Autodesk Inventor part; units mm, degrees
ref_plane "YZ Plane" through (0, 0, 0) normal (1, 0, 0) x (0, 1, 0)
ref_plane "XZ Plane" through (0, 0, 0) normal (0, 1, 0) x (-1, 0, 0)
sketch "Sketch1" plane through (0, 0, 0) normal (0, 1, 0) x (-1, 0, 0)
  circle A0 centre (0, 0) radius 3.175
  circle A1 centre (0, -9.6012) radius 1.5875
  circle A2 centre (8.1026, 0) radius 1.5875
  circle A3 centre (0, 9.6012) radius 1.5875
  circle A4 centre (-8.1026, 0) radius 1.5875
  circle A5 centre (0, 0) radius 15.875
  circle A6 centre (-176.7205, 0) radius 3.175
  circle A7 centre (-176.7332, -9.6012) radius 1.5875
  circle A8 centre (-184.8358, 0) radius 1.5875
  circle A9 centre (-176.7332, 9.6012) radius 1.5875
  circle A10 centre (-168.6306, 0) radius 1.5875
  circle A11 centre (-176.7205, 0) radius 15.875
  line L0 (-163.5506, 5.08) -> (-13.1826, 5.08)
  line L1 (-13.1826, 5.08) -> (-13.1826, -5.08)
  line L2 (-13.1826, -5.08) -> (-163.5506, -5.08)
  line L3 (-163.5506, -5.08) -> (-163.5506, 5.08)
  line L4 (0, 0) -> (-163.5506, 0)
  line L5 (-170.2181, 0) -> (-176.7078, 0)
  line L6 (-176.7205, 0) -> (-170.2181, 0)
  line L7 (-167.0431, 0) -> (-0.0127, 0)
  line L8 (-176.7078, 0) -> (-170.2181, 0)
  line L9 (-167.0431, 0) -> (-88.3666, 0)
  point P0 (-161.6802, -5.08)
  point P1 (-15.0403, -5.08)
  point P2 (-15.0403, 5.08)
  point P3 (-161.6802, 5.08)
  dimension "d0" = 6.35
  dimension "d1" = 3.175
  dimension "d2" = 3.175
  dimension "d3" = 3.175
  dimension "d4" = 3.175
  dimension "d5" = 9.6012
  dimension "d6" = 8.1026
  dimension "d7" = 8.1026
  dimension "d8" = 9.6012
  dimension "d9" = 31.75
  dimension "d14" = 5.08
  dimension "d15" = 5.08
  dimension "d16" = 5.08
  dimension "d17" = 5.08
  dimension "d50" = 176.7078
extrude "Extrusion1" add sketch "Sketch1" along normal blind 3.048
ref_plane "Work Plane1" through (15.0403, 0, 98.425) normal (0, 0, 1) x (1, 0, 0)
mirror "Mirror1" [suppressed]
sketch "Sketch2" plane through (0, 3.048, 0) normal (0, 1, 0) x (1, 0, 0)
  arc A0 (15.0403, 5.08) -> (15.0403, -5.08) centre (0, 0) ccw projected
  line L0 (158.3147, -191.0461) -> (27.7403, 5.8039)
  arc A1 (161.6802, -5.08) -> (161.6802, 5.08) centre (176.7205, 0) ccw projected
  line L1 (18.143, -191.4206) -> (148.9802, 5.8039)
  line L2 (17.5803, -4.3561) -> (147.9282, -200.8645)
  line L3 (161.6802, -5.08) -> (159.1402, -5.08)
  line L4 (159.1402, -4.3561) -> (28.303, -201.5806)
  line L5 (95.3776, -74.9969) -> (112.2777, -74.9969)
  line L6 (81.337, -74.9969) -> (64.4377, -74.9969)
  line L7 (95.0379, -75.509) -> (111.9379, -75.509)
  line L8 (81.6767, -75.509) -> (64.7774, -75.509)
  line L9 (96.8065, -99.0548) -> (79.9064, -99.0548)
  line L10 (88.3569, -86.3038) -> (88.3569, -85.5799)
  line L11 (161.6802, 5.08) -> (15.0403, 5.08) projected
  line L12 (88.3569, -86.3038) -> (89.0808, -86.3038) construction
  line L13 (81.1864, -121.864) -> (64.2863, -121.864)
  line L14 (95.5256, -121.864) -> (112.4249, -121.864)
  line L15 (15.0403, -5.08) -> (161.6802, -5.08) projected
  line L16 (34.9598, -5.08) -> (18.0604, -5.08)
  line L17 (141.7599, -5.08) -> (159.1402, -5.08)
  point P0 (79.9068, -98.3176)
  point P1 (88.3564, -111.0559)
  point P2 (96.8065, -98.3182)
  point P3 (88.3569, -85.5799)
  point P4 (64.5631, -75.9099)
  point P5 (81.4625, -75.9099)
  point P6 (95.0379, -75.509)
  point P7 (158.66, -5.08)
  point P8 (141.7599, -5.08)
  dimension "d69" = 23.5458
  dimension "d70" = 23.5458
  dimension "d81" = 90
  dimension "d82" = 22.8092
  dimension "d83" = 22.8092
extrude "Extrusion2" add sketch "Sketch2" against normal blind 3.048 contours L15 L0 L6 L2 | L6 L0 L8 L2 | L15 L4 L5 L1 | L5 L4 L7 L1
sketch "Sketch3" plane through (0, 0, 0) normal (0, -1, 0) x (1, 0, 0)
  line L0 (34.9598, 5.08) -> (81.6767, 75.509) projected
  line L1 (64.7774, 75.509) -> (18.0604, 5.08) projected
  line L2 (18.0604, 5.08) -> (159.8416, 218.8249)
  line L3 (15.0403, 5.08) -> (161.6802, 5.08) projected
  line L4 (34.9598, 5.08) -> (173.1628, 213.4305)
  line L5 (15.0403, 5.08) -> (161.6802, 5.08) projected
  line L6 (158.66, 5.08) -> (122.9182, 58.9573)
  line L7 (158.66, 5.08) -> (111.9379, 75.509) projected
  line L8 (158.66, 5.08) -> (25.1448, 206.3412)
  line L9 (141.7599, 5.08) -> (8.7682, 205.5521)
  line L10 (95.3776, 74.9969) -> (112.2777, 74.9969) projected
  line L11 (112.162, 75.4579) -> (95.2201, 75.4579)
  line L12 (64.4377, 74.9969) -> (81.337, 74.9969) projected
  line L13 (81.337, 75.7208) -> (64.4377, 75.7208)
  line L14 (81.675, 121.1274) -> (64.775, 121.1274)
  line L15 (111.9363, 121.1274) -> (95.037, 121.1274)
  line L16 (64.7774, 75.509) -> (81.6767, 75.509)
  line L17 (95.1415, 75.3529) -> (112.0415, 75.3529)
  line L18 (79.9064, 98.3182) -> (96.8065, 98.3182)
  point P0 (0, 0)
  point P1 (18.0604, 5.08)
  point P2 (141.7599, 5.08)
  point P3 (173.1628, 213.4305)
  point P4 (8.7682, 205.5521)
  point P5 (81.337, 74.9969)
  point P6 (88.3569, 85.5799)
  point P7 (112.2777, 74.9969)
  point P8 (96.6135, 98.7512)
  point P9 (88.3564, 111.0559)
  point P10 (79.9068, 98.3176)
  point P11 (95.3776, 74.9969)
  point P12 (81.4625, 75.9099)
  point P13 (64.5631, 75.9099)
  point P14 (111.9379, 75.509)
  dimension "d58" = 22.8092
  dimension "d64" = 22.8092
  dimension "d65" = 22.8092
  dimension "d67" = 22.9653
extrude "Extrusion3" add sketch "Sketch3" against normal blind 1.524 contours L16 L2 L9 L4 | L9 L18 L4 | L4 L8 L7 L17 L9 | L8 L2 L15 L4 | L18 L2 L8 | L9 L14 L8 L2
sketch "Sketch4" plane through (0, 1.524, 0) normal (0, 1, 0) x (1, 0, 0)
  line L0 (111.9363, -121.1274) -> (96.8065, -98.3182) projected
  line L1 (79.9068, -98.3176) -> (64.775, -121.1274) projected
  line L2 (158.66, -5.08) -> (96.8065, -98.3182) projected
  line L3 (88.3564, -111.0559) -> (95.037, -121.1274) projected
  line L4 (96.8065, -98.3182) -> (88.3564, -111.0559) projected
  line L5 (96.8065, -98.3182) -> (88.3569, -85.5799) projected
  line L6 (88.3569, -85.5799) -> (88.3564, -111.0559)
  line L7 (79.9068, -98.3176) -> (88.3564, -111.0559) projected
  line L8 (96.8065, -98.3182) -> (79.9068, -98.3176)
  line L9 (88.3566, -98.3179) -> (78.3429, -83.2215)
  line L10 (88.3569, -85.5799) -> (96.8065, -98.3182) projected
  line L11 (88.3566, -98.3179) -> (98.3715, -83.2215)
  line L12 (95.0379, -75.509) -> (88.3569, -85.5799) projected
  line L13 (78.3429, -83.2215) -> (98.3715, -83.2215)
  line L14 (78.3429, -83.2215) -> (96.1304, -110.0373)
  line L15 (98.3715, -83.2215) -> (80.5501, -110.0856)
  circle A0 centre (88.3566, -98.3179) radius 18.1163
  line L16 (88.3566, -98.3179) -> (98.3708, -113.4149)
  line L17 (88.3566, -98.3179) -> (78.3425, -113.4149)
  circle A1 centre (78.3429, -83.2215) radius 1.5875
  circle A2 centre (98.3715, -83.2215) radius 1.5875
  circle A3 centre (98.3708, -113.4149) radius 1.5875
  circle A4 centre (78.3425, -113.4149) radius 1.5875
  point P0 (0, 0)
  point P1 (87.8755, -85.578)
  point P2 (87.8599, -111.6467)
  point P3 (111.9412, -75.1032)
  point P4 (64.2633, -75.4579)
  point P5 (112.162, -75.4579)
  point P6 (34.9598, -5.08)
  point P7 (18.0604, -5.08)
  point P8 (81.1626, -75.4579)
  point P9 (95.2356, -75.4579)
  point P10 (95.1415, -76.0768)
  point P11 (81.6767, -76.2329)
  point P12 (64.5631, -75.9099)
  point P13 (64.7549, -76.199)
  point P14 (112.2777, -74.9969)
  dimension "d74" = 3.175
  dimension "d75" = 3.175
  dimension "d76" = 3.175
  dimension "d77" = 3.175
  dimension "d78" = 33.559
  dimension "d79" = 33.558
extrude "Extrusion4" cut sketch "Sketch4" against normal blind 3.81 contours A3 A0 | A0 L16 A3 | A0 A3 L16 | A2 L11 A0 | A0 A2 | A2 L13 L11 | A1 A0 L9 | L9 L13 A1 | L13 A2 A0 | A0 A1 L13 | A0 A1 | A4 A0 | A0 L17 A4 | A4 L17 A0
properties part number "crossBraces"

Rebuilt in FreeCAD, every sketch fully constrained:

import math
import FreeCAD as App
import Part
import Sketcher
Q = App.Units.Quantity

doc = App.newDocument("Part")
body = doc.addObject("PartDesign::Body", "Body")

sketch1 = body.newObject("Sketcher::SketchObject", "Sketch")
sketch1.AttachmentSupport = (doc.getObject("XZ_Plane"), [""])
sketch1.MapMode = "FlatFace"
sketch1.addGeometry(Part.LineSegment(App.Vector(15.040253, 5.08, 0), App.Vector(161.680247, 5.08, 0)), False)
sketch1.addGeometry(Part.ArcOfCircle(Part.Circle(App.Vector(176.7205, 0, 0), App.Vector(0, 0, 1), 15.875), math.radians(-161.337075), math.radians(161.337075)), False)
sketch1.addGeometry(Part.LineSegment(App.Vector(161.680247, -5.08, 0), App.Vector(15.040253, -5.08, 0)), False)
sketch1.addGeometry(Part.ArcOfCircle(Part.Circle(App.Vector(0, 0, 0), App.Vector(0, 0, 1), 15.875), math.radians(18.662925), math.radians(341.337075)), False)
sketch1.addGeometry(Part.Circle(App.Vector(0, -9.6012, 0), App.Vector(0, 0, 1), 1.5875), False)
sketch1.addGeometry(Part.ArcOfCircle(Part.Circle(App.Vector(8.1026, 0, 0), App.Vector(0, 0, 1), 1.5875), math.radians(0), math.radians(180)), False)
sketch1.addGeometry(Part.ArcOfCircle(Part.Circle(App.Vector(8.1026, 0, 0), App.Vector(0, 0, 1), 1.5875), math.radians(180), math.radians(360)), False)
sketch1.addGeometry(Part.Circle(App.Vector(0, 0, 0), App.Vector(0, 0, 1), 3.175), False)
sketch1.addGeometry(Part.Circle(App.Vector(-8.1026, 0, 0), App.Vector(0, 0, 1), 1.5875), False)
sketch1.addGeometry(Part.Circle(App.Vector(0, 9.6012, 0), App.Vector(0, 0, 1), 1.5875), False)
sketch1.addGeometry(Part.ArcOfCircle(Part.Circle(App.Vector(168.6306, 0, 0), App.Vector(0, 0, 1), 1.5875), math.radians(180), math.radians(360)), False)
sketch1.addGeometry(Part.ArcOfCircle(Part.Circle(App.Vector(168.6306, 0, 0), App.Vector(0, 0, 1), 1.5875), math.radians(0), math.radians(180)), False)
sketch1.addGeometry(Part.Circle(App.Vector(176.7332, 9.6012, 0), App.Vector(0, 0, 1), 1.5875), False)
sketch1.addGeometry(Part.Circle(App.Vector(176.7332, -9.6012, 0), App.Vector(0, 0, 1), 1.5875), False)
sketch1.addGeometry(Part.Circle(App.Vector(184.8358, 0, 0), App.Vector(0, 0, 1), 1.5875), False)
sketch1.addGeometry(Part.Circle(App.Vector(176.7205, 0, 0), App.Vector(0, 0, 1), 3.175), False)
sketch1.addConstraint(Sketcher.Constraint("Coincident", 0, 2, 1, 2))
sketch1.addConstraint(Sketcher.Constraint("Coincident", 1, 1, 2, 1))
sketch1.addConstraint(Sketcher.Constraint("Coincident", 2, 2, 3, 2))
sketch1.addConstraint(Sketcher.Constraint("Coincident", 3, 1, 0, 1))
sketch1.addConstraint(Sketcher.Constraint("Tangent", 5, 1, 6, 2))
sketch1.addConstraint(Sketcher.Constraint("Coincident", 6, 1, 5, 2))
sketch1.addConstraint(Sketcher.Constraint("Tangent", 10, 1, 11, 2))
sketch1.addConstraint(Sketcher.Constraint("Coincident", 11, 1, 10, 2))
sketch1.addConstraint(Sketcher.Constraint("Horizontal", 0))
sketch1.addConstraint(Sketcher.Constraint("Horizontal", 2))
sketch1.addConstraint(Sketcher.Constraint("Coincident", 3, 3, -1, 1))
sketch1.addConstraint(Sketcher.Constraint("Coincident", 7, 3, -1, 1))
sketch1.addConstraint(Sketcher.Constraint("Coincident", 15, 3, 1, 3))
sketch1.addConstraint(Sketcher.Constraint("Equal", 1, 3))
sketch1.addConstraint(Sketcher.Constraint("Equal", 4, 5))
sketch1.addConstraint(Sketcher.Constraint("Equal", 6, 8))
sketch1.addConstraint(Sketcher.Constraint("Equal", 8, 9))
sketch1.addConstraint(Sketcher.Constraint("Equal", 9, 10))
sketch1.addConstraint(Sketcher.Constraint("Equal", 11, 12))
sketch1.addConstraint(Sketcher.Constraint("Equal", 12, 13))
sketch1.addConstraint(Sketcher.Constraint("Equal", 13, 14))
sketch1.addConstraint(Sketcher.Constraint("Equal", 7, 15))
sketch1.addConstraint(Sketcher.Constraint("Symmetric", 5, 3, 8, 3, -1, 1))
sketch1.addConstraint(Sketcher.Constraint("Symmetric", 4, 3, 9, 3, -1, 1))
sketch1.addConstraint(Sketcher.Constraint("Symmetric", 12, 3, 13, 3, -1))
sketch1.addConstraint(Sketcher.Constraint("Symmetric", 0, 2, 1, 1, -1))
sketch1.addConstraint(Sketcher.Constraint("PointOnObject", 4, 3, -2))
sketch1.addConstraint(Sketcher.Constraint("PointOnObject", 5, 3, -1))
sketch1.addConstraint(Sketcher.Constraint("PointOnObject", 10, 3, -1))
sketch1.addConstraint(Sketcher.Constraint("PointOnObject", 14, 3, -1))
sketch1.addConstraint(Sketcher.Constraint("PointOnObject", 5, 1, -1))
sketch1.addConstraint(Sketcher.Constraint("PointOnObject", 6, 1, -1))
sketch1.addConstraint(Sketcher.Constraint("PointOnObject", 10, 1, -1))
sketch1.addConstraint(Sketcher.Constraint("PointOnObject", 11, 1, -1))
sketch1.addConstraint(Sketcher.Constraint("Horizontal", 9, 3, 12, 3))
sketch1.addConstraint(Sketcher.Constraint("Diameter", 7, Q("0.25 in")))
sketch1.addConstraint(Sketcher.Constraint("Diameter", 4, Q("0.125 in")))
sketch1.addConstraint(Sketcher.Constraint("Radius", 1, Q("0.625 in")))
sketch1.addConstraint(Sketcher.Constraint("DistanceY", -1, 1, 0, 2, Q("0.2 in")))
sketch1.addConstraint(Sketcher.Constraint("DistanceY", 4, 3, -1, 1, Q("0.378 in")))
sketch1.addConstraint(Sketcher.Constraint("DistanceX", -1, 1, 5, 3, Q("0.319 in")))
sketch1.addConstraint(Sketcher.Constraint("DistanceX", 10, 3, 12, 3, Q("0.319 in")))
sketch1.addConstraint(Sketcher.Constraint("DistanceX", 12, 3, 14, 3, Q("0.319 in")))
sketch1.addConstraint(Sketcher.Constraint("DistanceX", 5, 3, 10, 3, Q("6.32 in")))
sketch1.addConstraint(Sketcher.Constraint("DistanceX", 10, 1, 1, 3, Q("0.381 in")))
pad1 = body.newObject("PartDesign::Pad", "Pad")
pad1.Profile = sketch1
pad1.Length = Q("0.12 in")
pad1.Reversed = True

sketch2 = body.newObject("Sketcher::SketchObject", "Sketch001")
sketch2.AttachmentSupport = (doc.getObject("XZ_Plane"), [""])
sketch2.MapMode = "FlatFace"
sketch2.AttachmentOffset = App.Placement(App.Vector(0, 0, -0.12 * 25.4), App.Rotation())
sketch2.addGeometry(Part.LineSegment(App.Vector(34.9598, 5.08, 0), App.Vector(18.0604, 5.08, 0)), False)
sketch2.addGeometry(Part.LineSegment(App.Vector(18.0604, 5.08, 0), App.Vector(64.7774, 75.509, 0)), False)
sketch2.addGeometry(Part.LineSegment(App.Vector(64.7774, 75.509, 0), App.Vector(81.6767, 75.509, 0)), False)
sketch2.addGeometry(Part.LineSegment(App.Vector(81.6767, 75.509, 0), App.Vector(34.9598, 5.08, 0)), False)
sketch2.addGeometry(Part.LineSegment(App.Vector(158.65997, 5.08, 0), App.Vector(141.7599, 5.08, 0)), False)
sketch2.addGeometry(Part.LineSegment(App.Vector(141.7599, 5.08, 0), App.Vector(95.0379, 75.509, 0)), False)
sketch2.addGeometry(Part.LineSegment(App.Vector(95.0379, 75.509, 0), App.Vector(111.9379, 75.509, 0)), False)
sketch2.addGeometry(Part.LineSegment(App.Vector(111.9379, 75.509, 0), App.Vector(158.65997, 5.08, 0)), False)
sketch2.addConstraint(Sketcher.Constraint("Coincident", 0, 2, 1, 1))
sketch2.addConstraint(Sketcher.Constraint("Coincident", 1, 2, 2, 1))
sketch2.addConstraint(Sketcher.Constraint("Coincident", 2, 2, 3, 1))
sketch2.addConstraint(Sketcher.Constraint("Coincident", 3, 2, 0, 1))
sketch2.addConstraint(Sketcher.Constraint("Coincident", 4, 2, 5, 1))
sketch2.addConstraint(Sketcher.Constraint("Coincident", 5, 2, 6, 1))
sketch2.addConstraint(Sketcher.Constraint("Coincident", 6, 2, 7, 1))
sketch2.addConstraint(Sketcher.Constraint("Coincident", 7, 2, 4, 1))
sketch2.addConstraint(Sketcher.Constraint("Horizontal", 0))
sketch2.addConstraint(Sketcher.Constraint("Horizontal", 2))
sketch2.addConstraint(Sketcher.Constraint("Horizontal", 4))
sketch2.addConstraint(Sketcher.Constraint("Horizontal", 6))
sketch2.addConstraint(Sketcher.Constraint("Parallel", 1, 3))
sketch2.addConstraint(Sketcher.Constraint("Parallel", 5, 7))
sketch2.addConstraint(Sketcher.Constraint("Horizontal", 3, 2, 4, 2))
sketch2.addConstraint(Sketcher.Constraint("Horizontal", 2, 2, 5, 2))
sketch2.addConstraint(Sketcher.Constraint("DistanceY", -1, 1, 0, 2, Q("0.2 in")))
sketch2.addConstraint(Sketcher.Constraint("Angle", 5, Q("123.56 deg")))
sketch2.addConstraint(Sketcher.Constraint("DistanceX", -1, 1, 6, 2, Q("4.407 in")))
sketch2.addConstraint(Sketcher.Constraint("DistanceX", 0, 2, 0, 1, 16.8994))
sketch2.addConstraint(Sketcher.Constraint("DistanceX", 4, 2, 4, 1, 16.9))
sketch2.addConstraint(Sketcher.Constraint("DistanceX", -1, 1, 1, 2, Q("2.5503 in")))
sketch2.addConstraint(Sketcher.Constraint("DistanceY", -1, 1, 1, 2, Q("2.9728 in")))
sketch2.addConstraint(Sketcher.Constraint("DistanceX", 0, 2, 5, 2, Q("3.0306 in")))
pad2 = body.newObject("PartDesign::Pad", "Pad001")
pad2.Profile = sketch2
pad2.Length = Q("0.12 in")

sketch3 = body.newObject("Sketcher::SketchObject", "Sketch002")
sketch3.AttachmentSupport = (doc.getObject("XZ_Plane"), [""])
sketch3.MapMode = "FlatFace"
sketch3.addGeometry(Part.LineSegment(App.Vector(64.7774, 75.509, 0), App.Vector(81.6767, 75.509, 0)), False)
sketch3.addGeometry(Part.LineSegment(App.Vector(81.676732, 75.508979, 0), App.Vector(88.356919, 85.579819, 0)), False)
sketch3.addGeometry(Part.LineSegment(App.Vector(88.356919, 85.579819, 0), App.Vector(95.141417, 75.352845, 0)), False)
sketch3.addGeometry(Part.LineSegment(App.Vector(95.1415, 75.3529, 0), App.Vector(112.0415, 75.3529, 0)), False)
sketch3.addGeometry(Part.LineSegment(App.Vector(112.0415, 75.3529, 0), App.Vector(111.9379, 75.509, 0)), False)
sketch3.addGeometry(Part.LineSegment(App.Vector(111.937913, 75.509009, 0), App.Vector(96.806475, 98.318183, 0)), False)
sketch3.addGeometry(Part.LineSegment(App.Vector(96.806527, 98.318182, 0), App.Vector(111.936322, 121.127385, 0)), False)
sketch3.addGeometry(Part.LineSegment(App.Vector(111.9363, 121.1274, 0), App.Vector(95.037, 121.1274, 0)), False)
sketch3.addGeometry(Part.LineSegment(App.Vector(95.036948, 121.127435, 0), App.Vector(88.356334, 111.05595, 0)), False)
sketch3.addGeometry(Part.LineSegment(App.Vector(88.356334, 111.05595, 0), App.Vector(81.675006, 121.127404, 0)), False)
sketch3.addGeometry(Part.LineSegment(App.Vector(81.675, 121.1274, 0), App.Vector(64.775, 121.1274, 0)), False)
sketch3.addGeometry(Part.LineSegment(App.Vector(64.774943, 121.127362, 0), App.Vector(79.90638, 98.318187, 0)), False)
sketch3.addGeometry(Part.LineSegment(App.Vector(79.9064, 98.3182, 0), App.Vector(64.7774, 75.509, 0)), False)
sketch3.addConstraint(Sketcher.Constraint("Coincident", 0, 2, 1, 1))
sketch3.addConstraint(Sketcher.Constraint("Coincident", 1, 2, 2, 1))
sketch3.addConstraint(Sketcher.Constraint("Coincident", 2, 2, 3, 1))
sketch3.addConstraint(Sketcher.Constraint("Coincident", 3, 2, 4, 1))
sketch3.addConstraint(Sketcher.Constraint("Coincident", 4, 2, 5, 1))
sketch3.addConstraint(Sketcher.Constraint("Coincident", 5, 2, 6, 1))
sketch3.addConstraint(Sketcher.Constraint("Coincident", 6, 2, 7, 1))
sketch3.addConstraint(Sketcher.Constraint("Coincident", 7, 2, 8, 1))
sketch3.addConstraint(Sketcher.Constraint("Coincident", 8, 2, 9, 1))
sketch3.addConstraint(Sketcher.Constraint("Coincident", 9, 2, 10, 1))
sketch3.addConstraint(Sketcher.Constraint("Coincident", 10, 2, 11, 1))
sketch3.addConstraint(Sketcher.Constraint("Coincident", 11, 2, 12, 1))
sketch3.addConstraint(Sketcher.Constraint("Coincident", 12, 2, 0, 1))
sketch3.addConstraint(Sketcher.Constraint("Horizontal", 0))
sketch3.addConstraint(Sketcher.Constraint("Horizontal", 3))
sketch3.addConstraint(Sketcher.Constraint("Horizontal", 7))
sketch3.addConstraint(Sketcher.Constraint("Horizontal", 10))
sketch3.addConstraint(Sketcher.Constraint("Parallel", 2, 4))
sketch3.addConstraint(Sketcher.Constraint("Parallel", 4, 5))
sketch3.addConstraint(Sketcher.Constraint("Parallel", 1, 6))
sketch3.addConstraint(Sketcher.Constraint("Parallel", 6, 8))
sketch3.addConstraint(Sketcher.Constraint("Parallel", 5, 9))
sketch3.addConstraint(Sketcher.Constraint("Parallel", 9, 11))
sketch3.addConstraint(Sketcher.Constraint("Parallel", 8, 12))
sketch3.addConstraint(Sketcher.Constraint("Horizontal", 0, 2, 4, 2))
sketch3.addConstraint(Sketcher.Constraint("Horizontal", 7, 2, 9, 2))
sketch3.addConstraint(Sketcher.Constraint("Horizontal", 5, 2, 11, 2))
sketch3.addConstraint(Sketcher.Constraint("Equal", 0, 7))
sketch3.addConstraint(Sketcher.Constraint("Equal", 3, 10))
sketch3.addConstraint(Sketcher.Constraint("Equal", 5, 11))
sketch3.addConstraint(Sketcher.Constraint("DistanceY", 0, 2, 5, 2, Q("0.898 in")))
sketch3.addConstraint(Sketcher.Constraint("Angle", 2, Q("-56.44 deg")))
sketch3.addConstraint(Sketcher.Constraint("DistanceY", 2, 2, 5, 2, 22.9653))
sketch3.addConstraint(Sketcher.Constraint("DistanceX", -1, 1, 4, 2, Q("4.407 in")))
sketch3.addConstraint(Sketcher.Constraint("DistanceX", 0, 2, 1, 2, Q("0.263 in")))
sketch3.addConstraint(Sketcher.Constraint("DistanceX", 1, 2, 7, 2, Q("0.263 in")))
sketch3.addConstraint(Sketcher.Constraint("DistanceY", 1, 2, 8, 2, Q("1.003 in")))
sketch3.addConstraint(Sketcher.Constraint("DistanceX", 0, 1, 0, 2, 16.8993))
sketch3.addConstraint(Sketcher.Constraint("DistanceY", -1, 1, 0, 2, Q("2.9728 in")))
pad3 = body.newObject("PartDesign::Pad", "Pad002")
pad3.Profile = sketch3
pad3.Length = Q("0.06 in")
pad3.Reversed = True

sketch4 = body.newObject("Sketcher::SketchObject", "Sketch003")
sketch4.AttachmentSupport = (doc.getObject("XZ_Plane"), [""])
sketch4.MapMode = "FlatFace"
sketch4.AttachmentOffset = App.Placement(App.Vector(0, 0, -0.06 * 25.4), App.Rotation())
sketch4.addGeometry(Part.Circle(App.Vector(98.3708, 113.4149, 0), App.Vector(0, 0, 1), 1.5875), False)
sketch4.addGeometry(Part.Circle(App.Vector(98.3715, 83.2215, 0), App.Vector(0, 0, 1), 1.5875), False)
sketch4.addGeometry(Part.Circle(App.Vector(78.3429, 83.2215, 0), App.Vector(0, 0, 1), 1.5875), False)
sketch4.addGeometry(Part.Circle(App.Vector(78.3425, 113.4149, 0), App.Vector(0, 0, 1), 1.5875), False)
sketch4.addConstraint(Sketcher.Constraint("Equal", 0, 1))
sketch4.addConstraint(Sketcher.Constraint("Equal", 1, 2))
sketch4.addConstraint(Sketcher.Constraint("Equal", 2, 3))
sketch4.addConstraint(Sketcher.Constraint("Horizontal", 1, 3, 2, 3))
sketch4.addConstraint(Sketcher.Constraint("Horizontal", 0, 3, 3, 3))
sketch4.addConstraint(Sketcher.Constraint("Diameter", 0, Q("0.125 in")))
sketch4.addConstraint(Sketcher.Constraint("DistanceX", -1, 1, 1, 3, Q("3.8729 in")))
sketch4.addConstraint(Sketcher.Constraint("DistanceX", 2, 3, 0, 3, Q("0.7885 in")))
sketch4.addConstraint(Sketcher.Constraint("DistanceX", -1, 1, 0, 3, 98.3708))
sketch4.addConstraint(Sketcher.Constraint("DistanceY", -1, 1, 0, 3, 113.415))
sketch4.addConstraint(Sketcher.Constraint("DistanceY", -1, 1, 1, 3, 83.2215))
sketch4.addConstraint(Sketcher.Constraint("DistanceX", -1, 1, 3, 3, 78.3425))
pocket1 = body.newObject("PartDesign::Pocket", "Pocket")
pocket1.Profile = sketch4
pocket1.Length = Q("0.15 in")
pocket1.Reversed = True

doc.recompute()
